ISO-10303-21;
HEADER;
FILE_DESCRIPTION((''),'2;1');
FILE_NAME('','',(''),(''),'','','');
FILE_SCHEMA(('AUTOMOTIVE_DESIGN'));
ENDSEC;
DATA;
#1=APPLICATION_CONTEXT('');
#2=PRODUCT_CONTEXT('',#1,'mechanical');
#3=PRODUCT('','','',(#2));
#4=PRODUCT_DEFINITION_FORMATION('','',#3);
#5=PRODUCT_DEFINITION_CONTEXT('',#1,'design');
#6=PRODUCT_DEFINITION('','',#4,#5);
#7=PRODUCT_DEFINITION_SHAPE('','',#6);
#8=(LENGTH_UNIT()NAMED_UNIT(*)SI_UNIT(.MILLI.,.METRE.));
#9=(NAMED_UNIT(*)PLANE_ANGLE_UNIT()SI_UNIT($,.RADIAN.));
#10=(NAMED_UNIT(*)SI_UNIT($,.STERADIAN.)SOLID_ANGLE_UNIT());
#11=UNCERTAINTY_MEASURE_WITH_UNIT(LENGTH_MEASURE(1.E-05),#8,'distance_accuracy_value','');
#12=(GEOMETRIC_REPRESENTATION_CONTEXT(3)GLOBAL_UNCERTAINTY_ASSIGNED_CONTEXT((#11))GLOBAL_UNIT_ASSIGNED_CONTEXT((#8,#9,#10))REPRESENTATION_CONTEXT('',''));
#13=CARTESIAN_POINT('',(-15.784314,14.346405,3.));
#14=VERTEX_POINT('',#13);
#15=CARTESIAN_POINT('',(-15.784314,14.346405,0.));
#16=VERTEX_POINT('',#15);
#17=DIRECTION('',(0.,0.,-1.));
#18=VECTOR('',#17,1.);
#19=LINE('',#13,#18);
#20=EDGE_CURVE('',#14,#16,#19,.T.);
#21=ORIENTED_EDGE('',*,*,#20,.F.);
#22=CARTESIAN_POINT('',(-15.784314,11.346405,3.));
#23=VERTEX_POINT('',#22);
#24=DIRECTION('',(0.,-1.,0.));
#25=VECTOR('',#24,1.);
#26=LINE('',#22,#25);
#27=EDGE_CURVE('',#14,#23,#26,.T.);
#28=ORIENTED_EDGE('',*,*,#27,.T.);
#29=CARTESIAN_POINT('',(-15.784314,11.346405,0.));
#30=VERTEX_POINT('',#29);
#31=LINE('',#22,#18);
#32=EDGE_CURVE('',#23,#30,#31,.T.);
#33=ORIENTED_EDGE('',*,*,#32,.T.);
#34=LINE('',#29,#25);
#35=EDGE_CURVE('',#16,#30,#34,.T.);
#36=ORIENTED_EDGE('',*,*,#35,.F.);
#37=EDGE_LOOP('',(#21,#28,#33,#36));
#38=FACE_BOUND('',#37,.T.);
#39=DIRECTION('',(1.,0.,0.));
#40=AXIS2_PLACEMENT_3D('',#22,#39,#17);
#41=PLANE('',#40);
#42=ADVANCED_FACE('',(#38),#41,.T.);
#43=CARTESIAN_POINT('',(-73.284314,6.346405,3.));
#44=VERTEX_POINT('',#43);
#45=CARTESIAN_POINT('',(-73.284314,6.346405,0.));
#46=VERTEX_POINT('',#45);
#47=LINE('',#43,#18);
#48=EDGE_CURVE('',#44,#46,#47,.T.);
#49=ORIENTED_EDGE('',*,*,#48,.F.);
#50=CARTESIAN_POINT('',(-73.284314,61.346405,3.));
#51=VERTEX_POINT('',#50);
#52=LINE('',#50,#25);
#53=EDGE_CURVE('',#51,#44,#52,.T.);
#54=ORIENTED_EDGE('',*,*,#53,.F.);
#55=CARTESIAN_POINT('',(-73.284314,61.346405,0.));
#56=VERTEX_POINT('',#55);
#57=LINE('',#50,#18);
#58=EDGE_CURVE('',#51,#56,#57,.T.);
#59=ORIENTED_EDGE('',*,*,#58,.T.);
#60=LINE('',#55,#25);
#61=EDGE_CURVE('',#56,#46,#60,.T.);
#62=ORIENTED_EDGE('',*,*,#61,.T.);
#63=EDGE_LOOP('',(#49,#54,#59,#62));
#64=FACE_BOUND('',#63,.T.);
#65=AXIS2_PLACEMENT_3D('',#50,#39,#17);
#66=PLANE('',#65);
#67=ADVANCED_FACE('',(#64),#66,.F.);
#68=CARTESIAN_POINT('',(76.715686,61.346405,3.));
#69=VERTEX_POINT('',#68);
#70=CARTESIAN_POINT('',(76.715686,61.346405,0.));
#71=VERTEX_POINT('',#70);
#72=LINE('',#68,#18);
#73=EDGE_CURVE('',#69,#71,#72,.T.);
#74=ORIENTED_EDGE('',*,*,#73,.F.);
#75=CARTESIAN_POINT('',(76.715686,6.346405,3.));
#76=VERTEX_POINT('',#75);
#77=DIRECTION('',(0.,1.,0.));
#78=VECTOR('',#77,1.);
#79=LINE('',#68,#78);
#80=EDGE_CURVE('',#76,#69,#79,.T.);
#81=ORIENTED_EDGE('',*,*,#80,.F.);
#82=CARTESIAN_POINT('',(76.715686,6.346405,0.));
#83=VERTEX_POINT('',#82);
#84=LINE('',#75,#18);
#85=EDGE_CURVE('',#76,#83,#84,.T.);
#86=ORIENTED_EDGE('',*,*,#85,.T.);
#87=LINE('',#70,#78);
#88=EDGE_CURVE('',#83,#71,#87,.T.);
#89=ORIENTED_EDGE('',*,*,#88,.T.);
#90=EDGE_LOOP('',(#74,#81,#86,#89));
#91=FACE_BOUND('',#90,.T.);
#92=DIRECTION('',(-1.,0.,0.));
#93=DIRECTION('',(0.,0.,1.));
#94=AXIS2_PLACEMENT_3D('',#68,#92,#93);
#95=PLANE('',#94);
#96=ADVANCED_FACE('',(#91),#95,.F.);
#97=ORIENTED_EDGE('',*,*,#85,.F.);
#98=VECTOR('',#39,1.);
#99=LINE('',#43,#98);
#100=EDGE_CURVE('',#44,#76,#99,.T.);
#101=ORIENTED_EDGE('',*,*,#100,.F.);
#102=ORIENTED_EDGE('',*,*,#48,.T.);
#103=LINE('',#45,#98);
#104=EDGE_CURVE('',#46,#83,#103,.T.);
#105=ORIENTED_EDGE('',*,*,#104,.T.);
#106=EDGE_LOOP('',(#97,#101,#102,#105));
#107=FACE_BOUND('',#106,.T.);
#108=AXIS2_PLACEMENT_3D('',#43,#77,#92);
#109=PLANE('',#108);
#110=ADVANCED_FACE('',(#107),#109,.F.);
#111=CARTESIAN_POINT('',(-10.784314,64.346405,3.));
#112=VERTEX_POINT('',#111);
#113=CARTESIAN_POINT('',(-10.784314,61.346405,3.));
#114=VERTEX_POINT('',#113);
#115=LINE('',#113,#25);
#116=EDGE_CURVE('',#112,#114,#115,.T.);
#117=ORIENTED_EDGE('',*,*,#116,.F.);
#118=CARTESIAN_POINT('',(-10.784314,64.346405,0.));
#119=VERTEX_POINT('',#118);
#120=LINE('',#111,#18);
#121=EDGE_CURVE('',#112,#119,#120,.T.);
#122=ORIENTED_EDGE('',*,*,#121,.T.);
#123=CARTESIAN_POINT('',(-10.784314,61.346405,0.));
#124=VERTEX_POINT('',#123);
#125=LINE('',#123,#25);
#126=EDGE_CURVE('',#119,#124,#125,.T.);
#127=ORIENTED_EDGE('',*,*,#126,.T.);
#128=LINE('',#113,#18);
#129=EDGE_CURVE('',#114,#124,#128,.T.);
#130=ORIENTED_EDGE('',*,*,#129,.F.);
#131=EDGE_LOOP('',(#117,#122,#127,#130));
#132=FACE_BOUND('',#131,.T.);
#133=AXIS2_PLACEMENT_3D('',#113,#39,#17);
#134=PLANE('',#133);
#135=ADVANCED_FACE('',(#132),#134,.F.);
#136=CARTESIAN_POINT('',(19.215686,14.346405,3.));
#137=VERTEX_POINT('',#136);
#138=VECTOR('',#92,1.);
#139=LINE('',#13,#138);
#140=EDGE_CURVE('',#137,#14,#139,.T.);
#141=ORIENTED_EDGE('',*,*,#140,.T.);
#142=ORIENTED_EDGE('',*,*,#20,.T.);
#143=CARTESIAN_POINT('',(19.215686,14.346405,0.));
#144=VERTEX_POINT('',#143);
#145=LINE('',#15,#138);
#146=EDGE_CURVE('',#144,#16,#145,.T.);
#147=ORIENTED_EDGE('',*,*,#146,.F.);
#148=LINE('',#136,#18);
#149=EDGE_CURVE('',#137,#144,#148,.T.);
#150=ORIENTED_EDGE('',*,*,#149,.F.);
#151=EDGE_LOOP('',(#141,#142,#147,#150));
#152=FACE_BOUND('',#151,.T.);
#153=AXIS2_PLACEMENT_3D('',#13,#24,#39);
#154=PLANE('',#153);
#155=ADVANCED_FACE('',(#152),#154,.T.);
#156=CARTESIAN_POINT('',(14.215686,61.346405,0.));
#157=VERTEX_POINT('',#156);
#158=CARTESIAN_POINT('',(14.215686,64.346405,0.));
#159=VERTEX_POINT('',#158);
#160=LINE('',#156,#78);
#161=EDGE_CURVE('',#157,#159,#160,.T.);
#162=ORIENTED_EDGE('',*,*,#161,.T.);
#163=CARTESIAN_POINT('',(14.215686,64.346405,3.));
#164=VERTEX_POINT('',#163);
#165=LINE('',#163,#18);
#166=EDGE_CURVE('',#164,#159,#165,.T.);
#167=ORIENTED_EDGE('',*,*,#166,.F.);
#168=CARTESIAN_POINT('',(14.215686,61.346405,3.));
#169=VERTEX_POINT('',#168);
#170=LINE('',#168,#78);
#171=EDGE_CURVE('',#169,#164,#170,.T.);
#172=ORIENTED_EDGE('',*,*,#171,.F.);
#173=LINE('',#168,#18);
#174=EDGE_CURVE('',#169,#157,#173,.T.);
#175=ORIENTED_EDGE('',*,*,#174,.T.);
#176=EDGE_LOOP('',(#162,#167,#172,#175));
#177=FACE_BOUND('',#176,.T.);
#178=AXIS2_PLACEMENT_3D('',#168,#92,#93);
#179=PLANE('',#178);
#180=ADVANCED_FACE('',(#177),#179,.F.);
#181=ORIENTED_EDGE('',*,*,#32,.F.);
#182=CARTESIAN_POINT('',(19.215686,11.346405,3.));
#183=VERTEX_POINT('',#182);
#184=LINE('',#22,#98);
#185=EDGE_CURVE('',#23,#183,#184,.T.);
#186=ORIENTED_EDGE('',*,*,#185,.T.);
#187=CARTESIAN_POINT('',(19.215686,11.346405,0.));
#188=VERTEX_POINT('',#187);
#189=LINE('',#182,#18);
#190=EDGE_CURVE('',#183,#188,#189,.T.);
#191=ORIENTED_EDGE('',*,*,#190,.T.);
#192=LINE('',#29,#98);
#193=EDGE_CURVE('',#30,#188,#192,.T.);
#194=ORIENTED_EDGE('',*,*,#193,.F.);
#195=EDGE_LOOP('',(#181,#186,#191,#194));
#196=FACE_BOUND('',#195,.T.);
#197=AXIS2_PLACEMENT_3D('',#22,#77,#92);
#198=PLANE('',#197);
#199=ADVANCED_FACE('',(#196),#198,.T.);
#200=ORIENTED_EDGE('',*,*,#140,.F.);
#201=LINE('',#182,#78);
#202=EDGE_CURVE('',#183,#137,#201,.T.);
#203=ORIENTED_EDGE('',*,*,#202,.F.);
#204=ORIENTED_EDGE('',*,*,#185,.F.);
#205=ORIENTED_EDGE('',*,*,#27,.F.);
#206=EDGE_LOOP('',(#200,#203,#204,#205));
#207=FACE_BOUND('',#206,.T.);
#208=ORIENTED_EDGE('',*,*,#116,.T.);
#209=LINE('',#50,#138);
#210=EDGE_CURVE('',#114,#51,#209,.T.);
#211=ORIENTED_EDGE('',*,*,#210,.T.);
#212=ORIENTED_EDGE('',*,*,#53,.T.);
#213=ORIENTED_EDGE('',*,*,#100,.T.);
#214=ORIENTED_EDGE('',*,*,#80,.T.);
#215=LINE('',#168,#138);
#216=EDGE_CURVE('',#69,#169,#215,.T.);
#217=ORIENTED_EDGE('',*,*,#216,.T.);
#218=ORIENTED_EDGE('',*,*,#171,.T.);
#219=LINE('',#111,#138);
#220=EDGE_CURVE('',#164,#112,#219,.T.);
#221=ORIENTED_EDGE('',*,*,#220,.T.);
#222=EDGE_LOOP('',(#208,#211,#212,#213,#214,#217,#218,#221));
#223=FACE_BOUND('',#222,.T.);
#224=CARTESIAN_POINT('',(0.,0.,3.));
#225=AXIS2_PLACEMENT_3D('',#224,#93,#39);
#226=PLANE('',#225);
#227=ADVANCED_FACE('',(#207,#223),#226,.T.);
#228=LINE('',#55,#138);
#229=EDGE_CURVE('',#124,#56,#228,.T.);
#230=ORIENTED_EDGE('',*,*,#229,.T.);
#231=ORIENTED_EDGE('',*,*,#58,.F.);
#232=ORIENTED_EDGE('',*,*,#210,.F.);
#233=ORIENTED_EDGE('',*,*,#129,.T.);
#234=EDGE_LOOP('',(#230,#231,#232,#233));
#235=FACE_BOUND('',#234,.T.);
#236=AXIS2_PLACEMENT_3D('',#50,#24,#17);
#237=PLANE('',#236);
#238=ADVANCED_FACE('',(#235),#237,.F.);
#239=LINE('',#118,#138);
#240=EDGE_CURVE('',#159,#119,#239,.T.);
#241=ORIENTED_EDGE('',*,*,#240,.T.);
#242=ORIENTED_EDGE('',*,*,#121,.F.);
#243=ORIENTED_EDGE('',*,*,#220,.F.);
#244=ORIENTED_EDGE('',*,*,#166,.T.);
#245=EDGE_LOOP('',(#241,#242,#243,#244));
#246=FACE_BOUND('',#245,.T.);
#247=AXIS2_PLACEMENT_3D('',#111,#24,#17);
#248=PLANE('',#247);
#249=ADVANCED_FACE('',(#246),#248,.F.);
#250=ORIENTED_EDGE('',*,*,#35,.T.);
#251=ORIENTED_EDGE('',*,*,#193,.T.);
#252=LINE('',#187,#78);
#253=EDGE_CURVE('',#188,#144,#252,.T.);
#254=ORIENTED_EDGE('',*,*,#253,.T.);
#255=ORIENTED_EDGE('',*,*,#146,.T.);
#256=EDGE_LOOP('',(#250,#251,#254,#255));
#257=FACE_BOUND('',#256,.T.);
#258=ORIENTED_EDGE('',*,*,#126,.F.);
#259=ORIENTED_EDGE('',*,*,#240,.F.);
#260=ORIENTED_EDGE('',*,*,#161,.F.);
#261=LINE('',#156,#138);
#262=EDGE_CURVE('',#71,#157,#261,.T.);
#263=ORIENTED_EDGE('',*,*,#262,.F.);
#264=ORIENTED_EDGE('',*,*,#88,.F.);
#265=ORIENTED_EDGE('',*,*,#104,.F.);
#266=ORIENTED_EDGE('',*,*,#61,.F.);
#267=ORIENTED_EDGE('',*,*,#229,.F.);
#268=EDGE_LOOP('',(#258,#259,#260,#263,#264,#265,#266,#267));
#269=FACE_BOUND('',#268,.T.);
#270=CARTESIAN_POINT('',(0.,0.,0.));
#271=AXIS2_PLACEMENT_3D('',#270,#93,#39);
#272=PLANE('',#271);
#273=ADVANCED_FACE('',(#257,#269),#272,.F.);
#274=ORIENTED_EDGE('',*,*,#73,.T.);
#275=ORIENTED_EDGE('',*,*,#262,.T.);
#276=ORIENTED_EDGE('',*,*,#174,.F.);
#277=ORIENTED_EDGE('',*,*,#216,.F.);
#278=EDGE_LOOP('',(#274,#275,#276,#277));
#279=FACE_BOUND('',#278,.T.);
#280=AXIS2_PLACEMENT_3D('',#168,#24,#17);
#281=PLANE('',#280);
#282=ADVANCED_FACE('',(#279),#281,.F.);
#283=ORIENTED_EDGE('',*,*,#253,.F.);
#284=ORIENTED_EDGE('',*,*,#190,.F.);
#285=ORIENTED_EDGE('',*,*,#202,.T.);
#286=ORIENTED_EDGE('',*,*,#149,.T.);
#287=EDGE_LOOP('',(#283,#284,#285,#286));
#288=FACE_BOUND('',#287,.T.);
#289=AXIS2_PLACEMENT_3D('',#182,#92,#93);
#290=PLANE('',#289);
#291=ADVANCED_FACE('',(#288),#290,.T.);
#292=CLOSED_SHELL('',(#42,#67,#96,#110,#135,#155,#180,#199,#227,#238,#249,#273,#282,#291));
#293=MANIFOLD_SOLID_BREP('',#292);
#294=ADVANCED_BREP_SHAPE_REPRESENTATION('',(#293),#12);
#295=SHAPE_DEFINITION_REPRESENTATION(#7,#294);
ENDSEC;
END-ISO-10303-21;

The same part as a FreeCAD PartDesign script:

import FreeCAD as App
import Part
import Sketcher
from FreeCAD import Vector


def add_polygon(sketch, points):
    """Adds a closed chain of lines whose ends are joined by coincident constraints."""
    first, n = sketch.GeometryCount, len(points)
    for a, b in zip(points, points[1:] + points[:1]):
        sketch.addGeometry(Part.LineSegment(App.Vector(*a, 0), App.Vector(*b, 0)), False)
    for i in range(n):
        sketch.addConstraint(Sketcher.Constraint("Coincident", first + i, 2, first + (i + 1) % n, 1))

doc = App.newDocument("Part")
params = doc.addObject("Spreadsheet::Sheet", "Params")
for row, (alias, value) in enumerate([
    ("sketch1_width", "25 mm"),
    ("sketch1_width2", "150 mm"),
    ("sketch1_width3", "35 mm"),
    ("sketch1_height", "3 mm"),
    ("sketch1_height2", "55 mm"),
    ("pad1_length", "3 mm"),
], start=1):
    params.set(f"A{row}", alias)
    params.set(f"B{row}", "=" + value)
    params.setAlias(f"B{row}", alias)

body = doc.addObject("PartDesign::Body", "Body")

# Sketch on XY plane
sketch1 = doc.addObject("Sketcher::SketchObject", "Sketch")
body.addObject(sketch1)
sketch1.AttachmentSupport = (doc.XY_Plane, [""])
sketch1.MapMode = "FlatFace"
add_polygon(sketch1, [(76.715686, 61.346405), (14.215686, 61.346405), (14.215686, 64.346405), (-10.784314, 64.346405), (-10.784314, 61.346405), (-73.284314, 61.346405), (-73.284314, 6.346405), (76.715686, 6.346405)])  # lines 0-7
add_polygon(sketch1, [(-15.784314, 11.346405), (-15.784314, 14.346405), (19.215686, 14.346405), (19.215686, 11.346405)])  # lines 8-11
sketch1.addConstraint([
    Sketcher.Constraint("Horizontal", 0),
    Sketcher.Constraint("Vertical", 1),
    Sketcher.Constraint("Horizontal", 2),
    Sketcher.Constraint("Vertical", 3),
    Sketcher.Constraint("Horizontal", 4),
    Sketcher.Constraint("Vertical", 5),
    Sketcher.Constraint("Horizontal", 6),
    Sketcher.Constraint("Vertical", 7),
    Sketcher.Constraint("Vertical", 8),
    Sketcher.Constraint("Horizontal", 9),
    Sketcher.Constraint("Vertical", 10),
    Sketcher.Constraint("Horizontal", 11),
    Sketcher.Constraint("Horizontal", 0, 2, 3, 2),
    Sketcher.Constraint("Equal", 0, 4),
    Sketcher.Constraint("Equal", 3, 8),
    Sketcher.Constraint("DistanceX", 2, 2, 2, 1, 25.0),
    Sketcher.Constraint("DistanceX", 6, 1, 6, 2, 150.0),
    Sketcher.Constraint("DistanceX", 9, 1, 9, 2, 35.0),
    Sketcher.Constraint("DistanceY", 1, 1, 1, 2, 3.0),
    Sketcher.Constraint("DistanceY", 5, 2, 5, 1, 55.0),
    Sketcher.Constraint("DistanceX", 8, 2, 3, 2, 5.0),
    Sketcher.Constraint("DistanceY", 8, 2, 3, 2, 47.0),
    Sketcher.Constraint("DistanceX", -1, 1, 0, 2, 14.215686),
    Sketcher.Constraint("DistanceY", -1, 1, 0, 2, 61.346405),
])
sketch1.setExpression("Constraints[27]", "Params.sketch1_width")
sketch1.setExpression("Constraints[28]", "Params.sketch1_width2")
sketch1.setExpression("Constraints[29]", "Params.sketch1_width3")
sketch1.setExpression("Constraints[30]", "Params.sketch1_height")
sketch1.setExpression("Constraints[31]", "Params.sketch1_height2")
pad1 = doc.addObject("PartDesign::Pad", "Pad")
body.addObject(pad1)
pad1.Profile = sketch1
pad1.setExpression("Length", "Params.pad1_length")

doc.recompute()
